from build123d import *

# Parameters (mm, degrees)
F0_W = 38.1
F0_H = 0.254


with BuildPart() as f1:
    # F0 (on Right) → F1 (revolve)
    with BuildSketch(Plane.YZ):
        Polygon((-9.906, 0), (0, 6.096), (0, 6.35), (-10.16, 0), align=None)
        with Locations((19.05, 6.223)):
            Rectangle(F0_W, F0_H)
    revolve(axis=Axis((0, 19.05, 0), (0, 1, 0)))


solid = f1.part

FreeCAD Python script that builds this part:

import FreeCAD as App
import Part
import Sketcher
from FreeCAD import Vector
Q = App.Units.Quantity

doc = App.newDocument("Part")
params = doc.addObject("Spreadsheet::Sheet", "Params")
for row, (alias, value) in enumerate([
    ("sketch1_width", "1.5 in"),
    ("sketch1_width2", "0.01 in"),
    ("revolution_angle", "360 deg"),
], start=1):
    params.set(f"A{row}", alias)
    params.set(f"B{row}", "=" + value)
    params.setAlias(f"B{row}", alias)

body = doc.addObject("PartDesign::Body", "Body")

# Sketch on YZ plane
sketch1 = doc.addObject("Sketcher::SketchObject", "Sketch")
body.addObject(sketch1)
sketch1.AttachmentSupport = (doc.YZ_Plane, [""])
sketch1.MapMode = "FlatFace"
sketch1.addGeometry([
    Part.LineSegment(Vector(-9.91, 0, 0), Vector(0, 6.1, 0)),  # 0
    Part.LineSegment(Vector(0, 6.1, 0), Vector(38.1, 6.1, 0)),  # 1
    Part.LineSegment(Vector(38.1, 6.1, 0), Vector(38.1, 6.35, 0)),  # 2
    Part.LineSegment(Vector(38.1, 6.35, 0), Vector(0, 6.35, 0)),  # 3
    Part.LineSegment(Vector(0, 6.35, 0), Vector(-10.16, 0, 0)),  # 4
    Part.LineSegment(Vector(-10.16, 0, 0), Vector(-9.91, 0, 0)),  # 5
], False)
sketch1.addConstraint([
    Sketcher.Constraint("Coincident", 0, 2, 1, 1),
    Sketcher.Constraint("Coincident", 1, 2, 2, 1),
    Sketcher.Constraint("Coincident", 2, 2, 3, 1),
    Sketcher.Constraint("Coincident", 3, 2, 4, 1),
    Sketcher.Constraint("Coincident", 4, 2, 5, 1),
    Sketcher.Constraint("Coincident", 5, 2, 0, 1),
    Sketcher.Constraint("Horizontal", 1),
    Sketcher.Constraint("Vertical", 2),
    Sketcher.Constraint("Horizontal", 3),
    Sketcher.Constraint("Horizontal", 5),
    Sketcher.Constraint("PointOnObject", 0, 2, -2),
    Sketcher.Constraint("PointOnObject", 3, 2, -2),
    Sketcher.Constraint("PointOnObject", 4, 2, -1),
    Sketcher.Constraint("Equal", 5, 2),
    Sketcher.Constraint("DistanceX", 1, 1, 1, 2, Q("1.5 in")),
    Sketcher.Constraint("DistanceX", 5, 1, 5, 2, Q("0.01 in")),
    Sketcher.Constraint("DistanceX", 4, 2, -1, 1, Q("0.4 in")),
    Sketcher.Constraint("DistanceY", -1, 1, 0, 2, Q("0.24 in")),
])
sketch1.setExpression("Constraints[14]", "Params.sketch1_width")
sketch1.setExpression("Constraints[15]", "Params.sketch1_width2")
revolution = doc.addObject("PartDesign::Revolution", "Revolution")
body.addObject(revolution)
revolution.Profile = sketch1
revolution.ReferenceAxis = (sketch1, ["H_Axis"])
revolution.setExpression("Angle", "Params.revolution_angle")

doc.recompute()
